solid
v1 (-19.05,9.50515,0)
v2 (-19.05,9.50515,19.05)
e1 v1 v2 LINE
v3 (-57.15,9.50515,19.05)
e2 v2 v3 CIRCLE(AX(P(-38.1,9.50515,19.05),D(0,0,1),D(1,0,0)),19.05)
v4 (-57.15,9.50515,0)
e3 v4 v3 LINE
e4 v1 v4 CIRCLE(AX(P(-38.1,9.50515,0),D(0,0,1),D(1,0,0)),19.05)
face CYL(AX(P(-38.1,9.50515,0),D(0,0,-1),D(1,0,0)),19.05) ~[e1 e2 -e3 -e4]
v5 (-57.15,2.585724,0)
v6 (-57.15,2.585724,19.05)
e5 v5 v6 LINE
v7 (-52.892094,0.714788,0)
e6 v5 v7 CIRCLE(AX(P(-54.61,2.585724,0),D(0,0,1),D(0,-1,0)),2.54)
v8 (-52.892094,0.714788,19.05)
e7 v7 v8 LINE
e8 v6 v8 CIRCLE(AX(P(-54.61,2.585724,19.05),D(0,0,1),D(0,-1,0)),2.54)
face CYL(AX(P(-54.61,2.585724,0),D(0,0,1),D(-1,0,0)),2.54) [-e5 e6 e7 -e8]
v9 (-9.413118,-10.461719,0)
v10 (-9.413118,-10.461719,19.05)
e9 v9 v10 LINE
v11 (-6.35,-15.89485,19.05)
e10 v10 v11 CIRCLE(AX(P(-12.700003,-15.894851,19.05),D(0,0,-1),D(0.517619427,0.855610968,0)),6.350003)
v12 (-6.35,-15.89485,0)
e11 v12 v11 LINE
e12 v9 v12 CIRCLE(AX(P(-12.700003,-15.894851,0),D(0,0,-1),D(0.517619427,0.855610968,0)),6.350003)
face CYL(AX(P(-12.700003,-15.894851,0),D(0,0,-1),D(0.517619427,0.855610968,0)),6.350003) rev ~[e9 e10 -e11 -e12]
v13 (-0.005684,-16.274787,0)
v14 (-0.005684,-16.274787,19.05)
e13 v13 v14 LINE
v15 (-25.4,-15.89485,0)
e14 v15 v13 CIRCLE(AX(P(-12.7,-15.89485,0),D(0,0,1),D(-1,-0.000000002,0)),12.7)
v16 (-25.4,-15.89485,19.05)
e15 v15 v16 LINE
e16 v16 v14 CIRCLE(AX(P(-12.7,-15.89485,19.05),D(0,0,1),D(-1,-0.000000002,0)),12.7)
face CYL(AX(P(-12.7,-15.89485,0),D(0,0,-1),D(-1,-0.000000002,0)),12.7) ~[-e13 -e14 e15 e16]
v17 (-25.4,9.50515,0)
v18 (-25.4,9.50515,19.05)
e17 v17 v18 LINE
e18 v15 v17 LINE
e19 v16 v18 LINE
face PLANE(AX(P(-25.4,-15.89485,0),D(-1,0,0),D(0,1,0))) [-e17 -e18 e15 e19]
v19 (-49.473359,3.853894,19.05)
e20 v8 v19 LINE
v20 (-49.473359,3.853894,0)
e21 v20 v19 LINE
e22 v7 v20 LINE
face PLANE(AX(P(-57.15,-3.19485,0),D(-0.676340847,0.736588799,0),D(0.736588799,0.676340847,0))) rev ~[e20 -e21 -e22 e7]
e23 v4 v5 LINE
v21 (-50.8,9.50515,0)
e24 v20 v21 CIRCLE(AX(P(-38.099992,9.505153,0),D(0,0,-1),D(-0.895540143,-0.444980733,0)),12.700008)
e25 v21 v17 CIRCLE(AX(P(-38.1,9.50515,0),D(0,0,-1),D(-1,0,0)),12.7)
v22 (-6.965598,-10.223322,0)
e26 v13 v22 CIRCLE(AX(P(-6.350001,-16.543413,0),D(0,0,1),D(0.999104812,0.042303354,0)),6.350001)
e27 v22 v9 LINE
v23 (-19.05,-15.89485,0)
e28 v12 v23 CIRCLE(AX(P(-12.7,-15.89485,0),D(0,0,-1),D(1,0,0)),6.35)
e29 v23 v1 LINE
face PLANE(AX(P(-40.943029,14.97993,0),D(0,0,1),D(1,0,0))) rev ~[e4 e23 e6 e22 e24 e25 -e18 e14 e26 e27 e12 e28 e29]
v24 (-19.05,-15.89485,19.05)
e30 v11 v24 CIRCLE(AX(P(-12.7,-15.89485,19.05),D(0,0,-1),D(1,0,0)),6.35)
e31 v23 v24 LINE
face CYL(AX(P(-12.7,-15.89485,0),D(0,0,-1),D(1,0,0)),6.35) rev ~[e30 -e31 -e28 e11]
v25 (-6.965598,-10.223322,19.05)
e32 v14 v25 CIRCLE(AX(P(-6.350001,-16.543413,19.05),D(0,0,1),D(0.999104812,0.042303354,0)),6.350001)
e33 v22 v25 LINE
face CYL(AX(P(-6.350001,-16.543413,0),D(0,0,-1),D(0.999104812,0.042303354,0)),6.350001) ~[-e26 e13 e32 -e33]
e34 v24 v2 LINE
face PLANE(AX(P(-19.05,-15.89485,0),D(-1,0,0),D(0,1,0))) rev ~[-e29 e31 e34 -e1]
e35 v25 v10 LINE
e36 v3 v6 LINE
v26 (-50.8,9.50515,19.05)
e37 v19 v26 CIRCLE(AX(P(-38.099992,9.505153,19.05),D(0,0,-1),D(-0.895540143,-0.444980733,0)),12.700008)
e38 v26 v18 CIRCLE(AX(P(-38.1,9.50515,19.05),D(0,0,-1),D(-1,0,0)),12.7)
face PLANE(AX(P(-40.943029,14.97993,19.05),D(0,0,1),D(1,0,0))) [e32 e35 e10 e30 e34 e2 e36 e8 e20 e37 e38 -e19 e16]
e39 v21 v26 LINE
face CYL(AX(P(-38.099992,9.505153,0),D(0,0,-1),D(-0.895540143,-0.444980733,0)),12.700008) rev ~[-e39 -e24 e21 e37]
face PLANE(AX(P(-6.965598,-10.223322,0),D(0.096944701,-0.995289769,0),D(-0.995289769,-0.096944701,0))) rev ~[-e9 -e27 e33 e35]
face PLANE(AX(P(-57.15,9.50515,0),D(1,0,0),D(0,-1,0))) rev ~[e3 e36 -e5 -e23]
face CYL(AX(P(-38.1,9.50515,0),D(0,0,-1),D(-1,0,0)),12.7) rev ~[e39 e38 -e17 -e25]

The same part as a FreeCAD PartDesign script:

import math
import FreeCAD as App
import Part
import Sketcher
Q = App.Units.Quantity


def edges_at(feature, points):
    """Names of the edges that pass closest to the given points."""
    edges = feature.Shape.Edges
    near = lambda p: min(range(len(edges)), key=lambda i: edges[i].distToShape(Part.Vertex(*p))[0])
    return sorted({f"Edge{near(p) + 1}" for p in points})

doc = App.newDocument("Part")
body = doc.addObject("PartDesign::Body", "Body")

# Sketch on XY plane
sketch1 = body.newObject("Sketcher::SketchObject", "Sketch")
sketch1.AttachmentSupport = (doc.getObject("XY_Plane"), [""])
sketch1.MapMode = "FlatFace"
sketch1.addGeometry(Part.ArcOfCircle(Part.Circle(App.Vector(-38.1, 9.5, 0), App.Vector(0, 0, 1), 12.7), math.radians(0), math.radians(180)), False)
sketch1.addGeometry(Part.LineSegment(App.Vector(-25.4, 9.5, 0), App.Vector(-25.4, -15.9, 0)), False)
sketch1.addGeometry(Part.ArcOfCircle(Part.Circle(App.Vector(-12.7, -15.9, 0), App.Vector(0, 0, 1), 12.7), math.radians(-180), math.radians(-2)), False)
sketch1.addGeometry(Part.ArcOfCircle(Part.Circle(App.Vector(-6.4, -16.5, 0), App.Vector(0, 0, 1), 6.4), math.radians(2), math.radians(96)), False)
sketch1.addGeometry(Part.LineSegment(App.Vector(-7, -10.2, 0), App.Vector(-9.4, -10.5, 0)), False)
sketch1.addGeometry(Part.ArcOfCircle(Part.Circle(App.Vector(-12.7, -15.9, 0), App.Vector(0, 0, 1), 6.4), math.radians(0), math.radians(59)), False)
sketch1.addGeometry(Part.ArcOfCircle(Part.Circle(App.Vector(-12.7, -15.9, 0), App.Vector(0, 0, 1), 6.3), math.radians(180), math.radians(360)), False)
sketch1.addGeometry(Part.LineSegment(App.Vector(-19.1, -15.9, 0), App.Vector(-19.1, 9.5, 0)), False)
sketch1.addGeometry(Part.ArcOfCircle(Part.Circle(App.Vector(-38.1, 9.5, 0), App.Vector(0, 0, 1), 19.1), math.radians(0), math.radians(180)), False)
sketch1.addGeometry(Part.LineSegment(App.Vector(-57.1, 9.5, 0), App.Vector(-57.1, -3.2, 0)), False)
sketch1.addGeometry(Part.LineSegment(App.Vector(-57.1, -3.2, 0), App.Vector(-49.5, 3.9, 0)), False)
sketch1.addGeometry(Part.ArcOfCircle(Part.Circle(App.Vector(-38.1, 9.5, 0), App.Vector(0, 0, 1), 12.7), math.radians(-180), math.radians(-154)), False)
sketch1.addConstraint(Sketcher.Constraint("Tangent", 0, 1, 1, 1))
sketch1.addConstraint(Sketcher.Constraint("Tangent", 1, 2, 2, 1))
sketch1.addConstraint(Sketcher.Constraint("Coincident", 2, 2, 3, 1))
sketch1.addConstraint(Sketcher.Constraint("Tangent", 3, 2, 4, 1))
sketch1.addConstraint(Sketcher.Constraint("Coincident", 4, 2, 5, 2))
sketch1.addConstraint(Sketcher.Constraint("Tangent", 5, 1, 6, 2))
sketch1.addConstraint(Sketcher.Constraint("Tangent", 6, 1, 7, 1))
sketch1.addConstraint(Sketcher.Constraint("Tangent", 7, 2, 8, 1))
sketch1.addConstraint(Sketcher.Constraint("Tangent", 8, 2, 9, 1))
sketch1.addConstraint(Sketcher.Constraint("Coincident", 9, 2, 10, 1))
sketch1.addConstraint(Sketcher.Constraint("Coincident", 10, 2, 11, 2))
sketch1.addConstraint(Sketcher.Constraint("Tangent", 11, 1, 0, 2))
sketch1.addConstraint(Sketcher.Constraint("Vertical", 1))
sketch1.addConstraint(Sketcher.Constraint("Vertical", 7))
sketch1.addConstraint(Sketcher.Constraint("Vertical", 9))
sketch1.addConstraint(Sketcher.Constraint("Coincident", 5, 3, 2, 3))
sketch1.addConstraint(Sketcher.Constraint("Coincident", 8, 3, 0, 3))
sketch1.addConstraint(Sketcher.Constraint("Equal", 0, 2))
sketch1.addConstraint(Sketcher.Constraint("Equal", 3, 5))
sketch1.addConstraint(Sketcher.Constraint("Equal", 3, 6))
sketch1.addConstraint(Sketcher.Constraint("Horizontal", 1, 2, 5, 1))
sketch1.addConstraint(Sketcher.Constraint("Horizontal", 8, 2, 11, 1))
sketch1.addConstraint(Sketcher.Constraint("Vertical", 3, 3, 5, 1))
sketch1.addConstraint(Sketcher.Constraint("Radius", 0, Q("0.5 in")))
sketch1.addConstraint(Sketcher.Constraint("DistanceY", 1, 2, 1, 1, Q("1 in")))
sketch1.addConstraint(Sketcher.Constraint("Radius", 3, Q("0.25 in")))
sketch1.addConstraint(Sketcher.Constraint("DistanceY", 9, 2, 9, 1, Q("0.5 in")))
sketch1.addConstraint(Sketcher.Constraint("DistanceX", 0, 1, -1, 1, Q("1 in")))
sketch1.addConstraint(Sketcher.Constraint("Radius", 11, 12.700008))
sketch1.addConstraint(Sketcher.Constraint("DistanceX", 3, 2, -1, 1, 6.965598))
sketch1.addConstraint(Sketcher.Constraint("Distance", 10, 10.421881))
sketch1.addConstraint(Sketcher.Constraint("DistanceY", -1, 1, 0, 3, 9.50515))
sketch1.addConstraint(Sketcher.Constraint("DistanceY", 3, 2, -1, 1, 10.223322))
pad1 = body.newObject("PartDesign::Pad", "Pad")
pad1.Profile = sketch1
pad1.Length = Q("0.75 in")
doc.recompute()

fillet = body.newObject("PartDesign::Fillet", "Fillet")
fillet.Base = (pad1, edges_at(pad1, [(-57.15, -3.195, 9.525)]))
fillet.Radius = Q("0.1 in")

doc.recompute()
